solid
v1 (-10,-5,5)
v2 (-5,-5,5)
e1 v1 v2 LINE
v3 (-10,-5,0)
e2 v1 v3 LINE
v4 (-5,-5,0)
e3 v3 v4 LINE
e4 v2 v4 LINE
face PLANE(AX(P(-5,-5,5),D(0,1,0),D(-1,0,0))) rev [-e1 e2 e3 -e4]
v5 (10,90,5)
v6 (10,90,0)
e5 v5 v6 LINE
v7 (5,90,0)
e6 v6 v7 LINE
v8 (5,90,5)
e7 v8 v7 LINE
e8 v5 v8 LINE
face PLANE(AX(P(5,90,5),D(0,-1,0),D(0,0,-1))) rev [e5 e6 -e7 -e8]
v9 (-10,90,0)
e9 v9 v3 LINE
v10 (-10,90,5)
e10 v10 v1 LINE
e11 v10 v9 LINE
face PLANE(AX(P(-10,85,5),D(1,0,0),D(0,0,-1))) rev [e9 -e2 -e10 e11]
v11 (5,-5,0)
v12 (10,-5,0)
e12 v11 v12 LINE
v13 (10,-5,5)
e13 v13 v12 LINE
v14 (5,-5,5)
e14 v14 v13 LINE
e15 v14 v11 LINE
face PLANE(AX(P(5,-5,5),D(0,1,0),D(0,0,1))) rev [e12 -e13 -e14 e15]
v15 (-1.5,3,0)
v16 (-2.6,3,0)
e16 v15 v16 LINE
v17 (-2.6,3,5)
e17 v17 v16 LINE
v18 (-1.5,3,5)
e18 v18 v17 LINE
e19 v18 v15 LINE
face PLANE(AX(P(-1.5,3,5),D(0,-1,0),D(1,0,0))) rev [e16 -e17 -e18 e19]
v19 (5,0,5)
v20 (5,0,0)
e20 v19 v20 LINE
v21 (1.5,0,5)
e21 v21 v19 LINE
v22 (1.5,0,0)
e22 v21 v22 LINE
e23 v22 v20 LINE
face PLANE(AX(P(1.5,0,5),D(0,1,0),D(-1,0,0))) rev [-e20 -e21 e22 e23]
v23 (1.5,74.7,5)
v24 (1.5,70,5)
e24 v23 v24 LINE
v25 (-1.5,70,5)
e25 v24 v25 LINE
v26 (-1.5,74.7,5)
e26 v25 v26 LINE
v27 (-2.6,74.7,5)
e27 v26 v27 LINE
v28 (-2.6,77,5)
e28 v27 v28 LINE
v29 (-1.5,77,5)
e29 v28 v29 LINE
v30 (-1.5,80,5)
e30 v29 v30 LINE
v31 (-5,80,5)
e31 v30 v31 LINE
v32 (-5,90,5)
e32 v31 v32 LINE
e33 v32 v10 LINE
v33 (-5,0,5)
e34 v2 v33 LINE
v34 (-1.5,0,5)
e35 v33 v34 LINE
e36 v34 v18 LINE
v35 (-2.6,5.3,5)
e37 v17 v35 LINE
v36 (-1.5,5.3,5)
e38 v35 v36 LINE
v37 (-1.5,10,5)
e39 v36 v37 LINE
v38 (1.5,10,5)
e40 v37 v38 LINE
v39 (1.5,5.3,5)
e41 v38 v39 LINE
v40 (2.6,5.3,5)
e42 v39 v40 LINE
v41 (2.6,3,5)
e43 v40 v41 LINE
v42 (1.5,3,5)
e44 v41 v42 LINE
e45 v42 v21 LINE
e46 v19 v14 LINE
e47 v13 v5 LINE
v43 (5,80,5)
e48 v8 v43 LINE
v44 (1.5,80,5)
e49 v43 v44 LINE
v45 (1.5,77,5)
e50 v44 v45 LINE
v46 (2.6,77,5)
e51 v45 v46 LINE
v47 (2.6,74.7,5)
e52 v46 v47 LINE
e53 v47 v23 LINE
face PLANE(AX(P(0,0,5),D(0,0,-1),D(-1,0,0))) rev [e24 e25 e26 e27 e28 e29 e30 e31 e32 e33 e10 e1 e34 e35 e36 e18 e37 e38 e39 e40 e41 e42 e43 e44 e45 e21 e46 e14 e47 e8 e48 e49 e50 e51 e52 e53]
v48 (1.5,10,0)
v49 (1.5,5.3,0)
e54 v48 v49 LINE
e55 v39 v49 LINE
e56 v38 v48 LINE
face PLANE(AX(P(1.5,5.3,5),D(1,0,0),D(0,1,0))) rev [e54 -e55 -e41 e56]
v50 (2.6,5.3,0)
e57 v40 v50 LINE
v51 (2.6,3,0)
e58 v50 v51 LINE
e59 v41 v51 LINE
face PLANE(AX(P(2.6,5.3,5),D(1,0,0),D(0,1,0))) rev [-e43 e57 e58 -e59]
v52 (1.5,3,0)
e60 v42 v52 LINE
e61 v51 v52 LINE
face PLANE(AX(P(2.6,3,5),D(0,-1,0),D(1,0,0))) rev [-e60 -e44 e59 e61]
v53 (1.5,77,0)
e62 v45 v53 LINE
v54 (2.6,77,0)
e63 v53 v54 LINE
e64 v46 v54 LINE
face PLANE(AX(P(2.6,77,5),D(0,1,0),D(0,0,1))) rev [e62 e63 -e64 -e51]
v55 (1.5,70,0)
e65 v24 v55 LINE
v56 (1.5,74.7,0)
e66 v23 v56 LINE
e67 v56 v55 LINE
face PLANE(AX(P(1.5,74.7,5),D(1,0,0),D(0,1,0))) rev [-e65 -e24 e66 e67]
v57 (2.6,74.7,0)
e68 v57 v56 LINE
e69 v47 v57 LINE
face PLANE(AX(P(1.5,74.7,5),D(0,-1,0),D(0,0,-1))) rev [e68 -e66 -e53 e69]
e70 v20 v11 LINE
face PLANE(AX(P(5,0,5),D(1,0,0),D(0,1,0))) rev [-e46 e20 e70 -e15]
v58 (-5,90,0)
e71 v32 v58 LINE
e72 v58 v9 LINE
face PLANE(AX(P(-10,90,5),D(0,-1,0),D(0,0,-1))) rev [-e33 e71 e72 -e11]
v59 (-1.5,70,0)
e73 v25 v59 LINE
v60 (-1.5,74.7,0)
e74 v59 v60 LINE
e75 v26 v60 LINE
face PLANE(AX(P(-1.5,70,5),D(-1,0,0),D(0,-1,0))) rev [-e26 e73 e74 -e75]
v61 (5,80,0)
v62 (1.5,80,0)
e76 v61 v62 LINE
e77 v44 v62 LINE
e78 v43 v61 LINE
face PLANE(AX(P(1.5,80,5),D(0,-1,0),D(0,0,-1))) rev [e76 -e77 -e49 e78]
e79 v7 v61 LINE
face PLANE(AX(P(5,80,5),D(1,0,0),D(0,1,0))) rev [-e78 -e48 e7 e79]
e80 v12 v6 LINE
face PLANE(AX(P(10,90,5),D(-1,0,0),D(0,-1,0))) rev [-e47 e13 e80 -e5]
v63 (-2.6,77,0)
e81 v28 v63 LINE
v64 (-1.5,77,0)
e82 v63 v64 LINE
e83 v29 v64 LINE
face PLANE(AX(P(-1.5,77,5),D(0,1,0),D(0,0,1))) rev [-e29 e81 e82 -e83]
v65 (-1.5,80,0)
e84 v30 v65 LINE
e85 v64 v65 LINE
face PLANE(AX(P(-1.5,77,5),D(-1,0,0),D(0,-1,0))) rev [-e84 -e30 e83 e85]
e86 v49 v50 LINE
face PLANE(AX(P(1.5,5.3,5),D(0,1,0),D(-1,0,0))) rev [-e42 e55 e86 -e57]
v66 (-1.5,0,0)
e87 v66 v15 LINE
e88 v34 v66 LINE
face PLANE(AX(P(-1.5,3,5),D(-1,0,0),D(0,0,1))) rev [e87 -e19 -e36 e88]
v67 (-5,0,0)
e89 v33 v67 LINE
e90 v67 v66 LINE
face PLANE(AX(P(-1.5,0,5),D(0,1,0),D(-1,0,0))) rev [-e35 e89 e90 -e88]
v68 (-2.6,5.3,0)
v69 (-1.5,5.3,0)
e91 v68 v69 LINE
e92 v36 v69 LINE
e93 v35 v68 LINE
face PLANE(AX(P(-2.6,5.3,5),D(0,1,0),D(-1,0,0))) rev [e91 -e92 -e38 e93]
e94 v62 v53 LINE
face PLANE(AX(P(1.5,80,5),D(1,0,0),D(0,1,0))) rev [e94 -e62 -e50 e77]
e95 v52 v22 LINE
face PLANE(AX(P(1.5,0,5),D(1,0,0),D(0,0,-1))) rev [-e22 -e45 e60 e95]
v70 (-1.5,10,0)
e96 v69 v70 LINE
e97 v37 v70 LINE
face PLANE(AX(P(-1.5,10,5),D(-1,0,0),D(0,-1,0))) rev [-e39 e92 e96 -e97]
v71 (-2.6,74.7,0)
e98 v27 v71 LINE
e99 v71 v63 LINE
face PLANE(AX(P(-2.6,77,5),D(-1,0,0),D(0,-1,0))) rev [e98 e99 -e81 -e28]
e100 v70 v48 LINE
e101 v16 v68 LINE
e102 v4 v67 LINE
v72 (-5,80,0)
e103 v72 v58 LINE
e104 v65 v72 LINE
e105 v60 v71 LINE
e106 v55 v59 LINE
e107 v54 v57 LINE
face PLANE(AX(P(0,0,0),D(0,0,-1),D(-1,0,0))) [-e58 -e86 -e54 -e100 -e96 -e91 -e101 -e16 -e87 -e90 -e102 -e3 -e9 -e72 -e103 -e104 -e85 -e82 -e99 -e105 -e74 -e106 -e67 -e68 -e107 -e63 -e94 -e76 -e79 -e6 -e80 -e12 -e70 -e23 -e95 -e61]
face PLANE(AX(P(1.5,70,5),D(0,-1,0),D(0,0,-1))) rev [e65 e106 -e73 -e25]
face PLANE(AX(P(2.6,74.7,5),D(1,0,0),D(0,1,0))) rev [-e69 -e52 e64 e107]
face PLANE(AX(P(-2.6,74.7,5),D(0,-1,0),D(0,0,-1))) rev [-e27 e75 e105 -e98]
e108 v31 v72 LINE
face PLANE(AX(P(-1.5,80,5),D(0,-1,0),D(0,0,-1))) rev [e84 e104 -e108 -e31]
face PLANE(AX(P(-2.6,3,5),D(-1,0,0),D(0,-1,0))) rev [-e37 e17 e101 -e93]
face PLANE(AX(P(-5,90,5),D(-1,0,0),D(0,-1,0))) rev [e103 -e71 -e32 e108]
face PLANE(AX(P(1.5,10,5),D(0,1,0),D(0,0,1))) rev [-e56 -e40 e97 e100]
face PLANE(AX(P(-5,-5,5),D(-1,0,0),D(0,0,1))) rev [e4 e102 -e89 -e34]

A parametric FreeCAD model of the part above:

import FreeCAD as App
import Part
import Sketcher

V = App.Vector

doc = App.newDocument("Part")
params = doc.addObject("Spreadsheet::Sheet", "Params")
for row, (alias, value) in enumerate([
    ("sketch1_width", "3 mm"),
    ("sketch1_width2", "5 mm"),
    ("sketch1_height", "95 mm"),
    ("sketch1_height2", "10 mm"),
    ("sketch1_width3", "3.5 mm"),
    ("pad1_length", "5 mm"),
], start=1):
    params.set(f"A{row}", alias)
    params.set(f"B{row}", "=" + value)
    params.setAlias(f"B{row}", alias)

body = doc.addObject("PartDesign::Body", "Body")

# Sketch on XY plane
sketch1 = doc.addObject("Sketcher::SketchObject", "Sketch")
body.addObject(sketch1)
sketch1.AttachmentSupport = (doc.XY_Plane, [""])
sketch1.MapMode = "FlatFace"
sketch1.addGeometry([
    Part.LineSegment(V(-5, 0, 0), V(-1.5, 0, 0)),  # 0
    Part.LineSegment(V(-1.5, 0, 0), V(-1.5, 3, 0)),  # 1
    Part.LineSegment(V(-1.5, 3, 0), V(-2.6, 3, 0)),  # 2
    Part.LineSegment(V(-2.6, 3, 0), V(-2.6, 5.3, 0)),  # 3
    Part.LineSegment(V(-2.6, 5.3, 0), V(-1.5, 5.3, 0)),  # 4
    Part.LineSegment(V(-1.5, 5.3, 0), V(-1.5, 10, 0)),  # 5
    Part.LineSegment(V(-1.5, 10, 0), V(1.5, 10, 0)),  # 6
    Part.LineSegment(V(1.5, 10, 0), V(1.5, 5.3, 0)),  # 7
    Part.LineSegment(V(1.5, 5.3, 0), V(2.6, 5.3, 0)),  # 8
    Part.LineSegment(V(2.6, 5.3, 0), V(2.6, 3, 0)),  # 9
    Part.LineSegment(V(2.6, 3, 0), V(1.5, 3, 0)),  # 10
    Part.LineSegment(V(1.5, 3, 0), V(1.5, 0, 0)),  # 11
    Part.LineSegment(V(1.5, 0, 0), V(5, 0, 0)),  # 12
    Part.LineSegment(V(5, 0, 0), V(5, -5, 0)),  # 13
    Part.LineSegment(V(5, -5, 0), V(10, -5, 0)),  # 14
    Part.LineSegment(V(10, -5, 0), V(10, 90, 0)),  # 15
    Part.LineSegment(V(10, 90, 0), V(5, 90, 0)),  # 16
    Part.LineSegment(V(5, 90, 0), V(5, 80, 0)),  # 17
    Part.LineSegment(V(5, 80, 0), V(1.5, 80, 0)),  # 18
    Part.LineSegment(V(1.5, 80, 0), V(1.5, 77, 0)),  # 19
    Part.LineSegment(V(1.5, 77, 0), V(2.6, 77, 0)),  # 20
    Part.LineSegment(V(2.6, 77, 0), V(2.6, 74.7, 0)),  # 21
    Part.LineSegment(V(2.6, 74.7, 0), V(1.5, 74.7, 0)),  # 22
    Part.LineSegment(V(1.5, 74.7, 0), V(1.5, 70, 0)),  # 23
    Part.LineSegment(V(1.5, 70, 0), V(-1.5, 70, 0)),  # 24
    Part.LineSegment(V(-1.5, 70, 0), V(-1.5, 74.7, 0)),  # 25
    Part.LineSegment(V(-1.5, 74.7, 0), V(-2.6, 74.7, 0)),  # 26
    Part.LineSegment(V(-2.6, 74.7, 0), V(-2.6, 77, 0)),  # 27
    Part.LineSegment(V(-2.6, 77, 0), V(-1.5, 77, 0)),  # 28
    Part.LineSegment(V(-1.5, 77, 0), V(-1.5, 80, 0)),  # 29
    Part.LineSegment(V(-1.5, 80, 0), V(-5, 80, 0)),  # 30
    Part.LineSegment(V(-5, 80, 0), V(-5, 90, 0)),  # 31
    Part.LineSegment(V(-5, 90, 0), V(-10, 90, 0)),  # 32
    Part.LineSegment(V(-10, 90, 0), V(-10, -5, 0)),  # 33
    Part.LineSegment(V(-10, -5, 0), V(-5, -5, 0)),  # 34
    Part.LineSegment(V(-5, -5, 0), V(-5, 0, 0)),  # 35
], False)
sketch1.addConstraint([
    Sketcher.Constraint("Coincident", 0, 2, 1, 1),
    Sketcher.Constraint("Coincident", 1, 2, 2, 1),
    Sketcher.Constraint("Coincident", 2, 2, 3, 1),
    Sketcher.Constraint("Coincident", 3, 2, 4, 1),
    Sketcher.Constraint("Coincident", 4, 2, 5, 1),
    Sketcher.Constraint("Coincident", 5, 2, 6, 1),
    Sketcher.Constraint("Coincident", 6, 2, 7, 1),
    Sketcher.Constraint("Coincident", 7, 2, 8, 1),
    Sketcher.Constraint("Coincident", 8, 2, 9, 1),
    Sketcher.Constraint("Coincident", 9, 2, 10, 1),
    Sketcher.Constraint("Coincident", 10, 2, 11, 1),
    Sketcher.Constraint("Coincident", 11, 2, 12, 1),
    Sketcher.Constraint("Coincident", 12, 2, 13, 1),
    Sketcher.Constraint("Coincident", 13, 2, 14, 1),
    Sketcher.Constraint("Coincident", 14, 2, 15, 1),
    Sketcher.Constraint("Coincident", 15, 2, 16, 1),
    Sketcher.Constraint("Coincident", 16, 2, 17, 1),
    Sketcher.Constraint("Coincident", 17, 2, 18, 1),
    Sketcher.Constraint("Coincident", 18, 2, 19, 1),
    Sketcher.Constraint("Coincident", 19, 2, 20, 1),
    Sketcher.Constraint("Coincident", 20, 2, 21, 1),
    Sketcher.Constraint("Coincident", 21, 2, 22, 1),
    Sketcher.Constraint("Coincident", 22, 2, 23, 1),
    Sketcher.Constraint("Coincident", 23, 2, 24, 1),
    Sketcher.Constraint("Coincident", 24, 2, 25, 1),
    Sketcher.Constraint("Coincident", 25, 2, 26, 1),
    Sketcher.Constraint("Coincident", 26, 2, 27, 1),
    Sketcher.Constraint("Coincident", 27, 2, 28, 1),
    Sketcher.Constraint("Coincident", 28, 2, 29, 1),
    Sketcher.Constraint("Coincident", 29, 2, 30, 1),
    Sketcher.Constraint("Coincident", 30, 2, 31, 1),
    Sketcher.Constraint("Coincident", 31, 2, 32, 1),
    Sketcher.Constraint("Coincident", 32, 2, 33, 1),
    Sketcher.Constraint("Coincident", 33, 2, 34, 1),
    Sketcher.Constraint("Coincident", 34, 2, 35, 1),
    Sketcher.Constraint("Coincident", 35, 2, 0, 1),
    Sketcher.Constraint("Horizontal", 0),
    Sketcher.Constraint("Vertical", 1),
    Sketcher.Constraint("Horizontal", 2),
    Sketcher.Constraint("Vertical", 3),
    Sketcher.Constraint("Horizontal", 4),
    Sketcher.Constraint("Vertical", 5),
    Sketcher.Constraint("Horizontal", 6),
    Sketcher.Constraint("Vertical", 7),
    Sketcher.Constraint("Horizontal", 8),
    Sketcher.Constraint("Vertical", 9),
    Sketcher.Constraint("Horizontal", 10),
    Sketcher.Constraint("Vertical", 11),
    Sketcher.Constraint("Horizontal", 12),
    Sketcher.Constraint("Vertical", 13),
    Sketcher.Constraint("Horizontal", 14),
    Sketcher.Constraint("Vertical", 15),
    Sketcher.Constraint("Horizontal", 16),
    Sketcher.Constraint("Vertical", 17),
    Sketcher.Constraint("Horizontal", 18),
    Sketcher.Constraint("Vertical", 19),
    Sketcher.Constraint("Horizontal", 20),
    Sketcher.Constraint("Vertical", 21),
    Sketcher.Constraint("Horizontal", 22),
    Sketcher.Constraint("Vertical", 23),
    Sketcher.Constraint("Horizontal", 24),
    Sketcher.Constraint("Vertical", 25),
    Sketcher.Constraint("Horizontal", 26),
    Sketcher.Constraint("Vertical", 27),
    Sketcher.Constraint("Horizontal", 28),
    Sketcher.Constraint("Vertical", 29),
    Sketcher.Constraint("Horizontal", 30),
    Sketcher.Constraint("Vertical", 31),
    Sketcher.Constraint("Horizontal", 32),
    Sketcher.Constraint("Vertical", 33),
    Sketcher.Constraint("Horizontal", 34),
    Sketcher.Constraint("Vertical", 35),
    Sketcher.Constraint("Symmetric", 0, 2, 11, 2, -1, 1),
    Sketcher.Constraint("Symmetric", 4, 2, 7, 2, -2),
    Sketcher.Constraint("Symmetric", 2, 2, 9, 2, -2),
    Sketcher.Constraint("Symmetric", 22, 2, 25, 2, -2),
    Sketcher.Constraint("Symmetric", 20, 2, 27, 2, -2),
    Sketcher.Constraint("Symmetric", 18, 2, 29, 2, -2),
    Sketcher.Constraint("Symmetric", 16, 2, 31, 2, -2),
    Sketcher.Constraint("Symmetric", 14, 2, 33, 2, -2),
    Sketcher.Constraint("Symmetric", 12, 2, 35, 2, -2),
    Sketcher.Constraint("Vertical", 1, 2, 4, 2),
    Sketcher.Constraint("Vertical", 13, 2, 16, 2),
    Sketcher.Constraint("Vertical", 11, 2, 18, 2),
    Sketcher.Constraint("Vertical", 9, 2, 20, 2),
    Sketcher.Constraint("Vertical", 19, 2, 22, 2),
    Sketcher.Constraint("Equal", 24, 1),
    Sketcher.Constraint("Equal", 34, 13),
    Sketcher.Constraint("Equal", 11, 19),
    Sketcher.Constraint("Equal", 9, 21),
    Sketcher.Constraint("Equal", 7, 23),
    Sketcher.Constraint("DistanceX", 6, 1, 6, 2, 3.0),
    Sketcher.Constraint("DistanceX", 14, 1, 14, 2, 5.0),
    Sketcher.Constraint("DistanceY", 15, 1, 15, 2, 95.0),
    Sketcher.Constraint("DistanceY", 17, 2, 17, 1, 10.0),
    Sketcher.Constraint("DistanceX", 0, 1, 0, 2, 3.5),
    Sketcher.Constraint("DistanceX", 2, 2, 2, 1, 1.1),
    Sketcher.Constraint("DistanceY", 3, 1, 3, 2, 2.3),
    Sketcher.Constraint("DistanceY", 5, 1, 5, 2, 4.7),
])
sketch1.setExpression("Constraints[91]", "Params.sketch1_width")
sketch1.setExpression("Constraints[92]", "Params.sketch1_width2")
sketch1.setExpression("Constraints[93]", "Params.sketch1_height")
sketch1.setExpression("Constraints[94]", "Params.sketch1_height2")
sketch1.setExpression("Constraints[95]", "Params.sketch1_width3")
pad1 = doc.addObject("PartDesign::Pad", "Pad")
body.addObject(pad1)
pad1.Profile = sketch1
pad1.setExpression("Length", "Params.pad1_length")

doc.recompute()
